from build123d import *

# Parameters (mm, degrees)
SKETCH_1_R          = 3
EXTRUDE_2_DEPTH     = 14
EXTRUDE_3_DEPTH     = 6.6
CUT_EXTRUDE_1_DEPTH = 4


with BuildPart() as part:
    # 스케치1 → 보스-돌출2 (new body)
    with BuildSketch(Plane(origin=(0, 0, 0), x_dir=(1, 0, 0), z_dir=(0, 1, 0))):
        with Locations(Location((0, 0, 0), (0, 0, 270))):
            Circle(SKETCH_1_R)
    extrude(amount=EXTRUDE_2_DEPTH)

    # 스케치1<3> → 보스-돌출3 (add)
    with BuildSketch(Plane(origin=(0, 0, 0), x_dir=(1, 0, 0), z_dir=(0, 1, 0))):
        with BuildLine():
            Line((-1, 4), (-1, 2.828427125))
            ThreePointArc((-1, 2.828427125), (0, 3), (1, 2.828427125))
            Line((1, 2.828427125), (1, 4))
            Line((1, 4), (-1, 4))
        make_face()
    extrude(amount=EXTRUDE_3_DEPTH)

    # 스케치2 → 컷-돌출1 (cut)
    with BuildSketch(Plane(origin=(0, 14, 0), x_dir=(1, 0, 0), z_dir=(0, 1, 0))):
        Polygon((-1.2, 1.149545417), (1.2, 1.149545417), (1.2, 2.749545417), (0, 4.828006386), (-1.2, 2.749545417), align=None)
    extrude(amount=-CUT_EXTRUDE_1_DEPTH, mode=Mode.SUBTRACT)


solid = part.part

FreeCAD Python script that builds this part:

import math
import FreeCAD as App
import Part
import Sketcher
Q = App.Units.Quantity

doc = App.newDocument("Part")
body = doc.addObject("PartDesign::Body", "Body")

sketch1 = doc.addObject("Sketcher::SketchObject", "Sketch")
body.addObject(sketch1)
sketch1.AttachmentSupport = (doc.XZ_Plane, [""])
sketch1.MapMode = "FlatFace"
sketch1.addGeometry(Part.Circle(App.Vector(0, 0, 0), App.Vector(0, 0, 1), 3), False)
sketch1.addConstraint([
    Sketcher.Constraint("Coincident", 0, 3, -1, 1),
    Sketcher.Constraint("Diameter", 0, Q("6 mm")),
])
pad1 = doc.addObject("PartDesign::Pad", "Pad")
body.addObject(pad1)
pad1.Profile = sketch1
pad1.Length = 14
pad1.Reversed = True

sketch2 = doc.addObject("Sketcher::SketchObject", "Sketch001")
body.addObject(sketch2)
sketch2.AttachmentSupport = (doc.XZ_Plane, [""])
sketch2.MapMode = "FlatFace"
sketch2.addGeometry([
    Part.LineSegment(App.Vector(-1, -4, 0), App.Vector(-1, -2.828427, 0)),
    Part.ArcOfCircle(Part.Circle(App.Vector(0, 0, 0), App.Vector(0, 0, 1), 3), math.radians(-109.471221), math.radians(-70.528779)),
    Part.LineSegment(App.Vector(1, -2.828427, 0), App.Vector(1, -4, 0)),
    Part.LineSegment(App.Vector(1, -4, 0), App.Vector(-1, -4, 0)),
], False)
sketch2.addConstraint([
    Sketcher.Constraint("Coincident", 0, 2, 1, 1),
    Sketcher.Constraint("Coincident", 1, 2, 2, 1),
    Sketcher.Constraint("Coincident", 2, 2, 3, 1),
    Sketcher.Constraint("Coincident", 3, 2, 0, 1),
    Sketcher.Constraint("Vertical", 0),
    Sketcher.Constraint("Vertical", 2),
    Sketcher.Constraint("Horizontal", 3),
    Sketcher.Constraint("Coincident", 1, 3, -1, 1),
    Sketcher.Constraint("Horizontal", 0, 2, 1, 2),
    Sketcher.Constraint("Radius", 1, Q("3 mm")),
    Sketcher.Constraint("DistanceX", 3, 2, 3, 1, Q("2 mm")),
    Sketcher.Constraint("DistanceY", 2, 2, -1, 1, Q("4 mm")),
])
pad2 = doc.addObject("PartDesign::Pad", "Pad001")
body.addObject(pad2)
pad2.Profile = sketch2
pad2.Length = 6.6
pad2.Reversed = True

sketch3 = doc.addObject("Sketcher::SketchObject", "Sketch002")
body.addObject(sketch3)
sketch3.AttachmentSupport = (doc.XZ_Plane, [""])
sketch3.MapMode = "FlatFace"
sketch3.AttachmentOffset = App.Placement(App.Vector(0, 0, -14), App.Rotation())
sketch3.addGeometry([
    Part.LineSegment(App.Vector(-1.2, -1.149545, 0), App.Vector(1.2, -1.149545, 0)),
    Part.LineSegment(App.Vector(1.2, -1.149545, 0), App.Vector(1.2, -2.749545, 0)),
    Part.LineSegment(App.Vector(1.2, -2.749545, 0), App.Vector(0, -4.828006, 0)),
    Part.LineSegment(App.Vector(0, -4.828006, 0), App.Vector(-1.2, -2.749545, 0)),
    Part.LineSegment(App.Vector(-1.2, -2.749545, 0), App.Vector(-1.2, -1.149545, 0)),
], False)
sketch3.addConstraint([
    Sketcher.Constraint("Coincident", 0, 2, 1, 1),
    Sketcher.Constraint("Coincident", 1, 2, 2, 1),
    Sketcher.Constraint("Coincident", 2, 2, 3, 1),
    Sketcher.Constraint("Coincident", 3, 2, 4, 1),
    Sketcher.Constraint("Coincident", 4, 2, 0, 1),
    Sketcher.Constraint("Horizontal", 0),
    Sketcher.Constraint("Vertical", 1),
    Sketcher.Constraint("Vertical", 4),
    Sketcher.Constraint("Symmetric", 1, 2, 3, 2, -2),
    Sketcher.Constraint("PointOnObject", 2, 2, -2),
    Sketcher.Constraint("Angle", 2, Q("-120 deg")),
    Sketcher.Constraint("DistanceX", 0, 1, 0, 2, Q("2.4 mm")),
    Sketcher.Constraint("DistanceY", 1, 2, 1, 1, Q("1.6 mm")),
    Sketcher.Constraint("DistanceY", 0, 2, -1, 1, Q("1.149545 mm")),
])
pocket1 = doc.addObject("PartDesign::Pocket", "Pocket")
body.addObject(pocket1)
pocket1.Profile = sketch3
pocket1.Length = 4
pocket1.Reversed = True

doc.recompute()
